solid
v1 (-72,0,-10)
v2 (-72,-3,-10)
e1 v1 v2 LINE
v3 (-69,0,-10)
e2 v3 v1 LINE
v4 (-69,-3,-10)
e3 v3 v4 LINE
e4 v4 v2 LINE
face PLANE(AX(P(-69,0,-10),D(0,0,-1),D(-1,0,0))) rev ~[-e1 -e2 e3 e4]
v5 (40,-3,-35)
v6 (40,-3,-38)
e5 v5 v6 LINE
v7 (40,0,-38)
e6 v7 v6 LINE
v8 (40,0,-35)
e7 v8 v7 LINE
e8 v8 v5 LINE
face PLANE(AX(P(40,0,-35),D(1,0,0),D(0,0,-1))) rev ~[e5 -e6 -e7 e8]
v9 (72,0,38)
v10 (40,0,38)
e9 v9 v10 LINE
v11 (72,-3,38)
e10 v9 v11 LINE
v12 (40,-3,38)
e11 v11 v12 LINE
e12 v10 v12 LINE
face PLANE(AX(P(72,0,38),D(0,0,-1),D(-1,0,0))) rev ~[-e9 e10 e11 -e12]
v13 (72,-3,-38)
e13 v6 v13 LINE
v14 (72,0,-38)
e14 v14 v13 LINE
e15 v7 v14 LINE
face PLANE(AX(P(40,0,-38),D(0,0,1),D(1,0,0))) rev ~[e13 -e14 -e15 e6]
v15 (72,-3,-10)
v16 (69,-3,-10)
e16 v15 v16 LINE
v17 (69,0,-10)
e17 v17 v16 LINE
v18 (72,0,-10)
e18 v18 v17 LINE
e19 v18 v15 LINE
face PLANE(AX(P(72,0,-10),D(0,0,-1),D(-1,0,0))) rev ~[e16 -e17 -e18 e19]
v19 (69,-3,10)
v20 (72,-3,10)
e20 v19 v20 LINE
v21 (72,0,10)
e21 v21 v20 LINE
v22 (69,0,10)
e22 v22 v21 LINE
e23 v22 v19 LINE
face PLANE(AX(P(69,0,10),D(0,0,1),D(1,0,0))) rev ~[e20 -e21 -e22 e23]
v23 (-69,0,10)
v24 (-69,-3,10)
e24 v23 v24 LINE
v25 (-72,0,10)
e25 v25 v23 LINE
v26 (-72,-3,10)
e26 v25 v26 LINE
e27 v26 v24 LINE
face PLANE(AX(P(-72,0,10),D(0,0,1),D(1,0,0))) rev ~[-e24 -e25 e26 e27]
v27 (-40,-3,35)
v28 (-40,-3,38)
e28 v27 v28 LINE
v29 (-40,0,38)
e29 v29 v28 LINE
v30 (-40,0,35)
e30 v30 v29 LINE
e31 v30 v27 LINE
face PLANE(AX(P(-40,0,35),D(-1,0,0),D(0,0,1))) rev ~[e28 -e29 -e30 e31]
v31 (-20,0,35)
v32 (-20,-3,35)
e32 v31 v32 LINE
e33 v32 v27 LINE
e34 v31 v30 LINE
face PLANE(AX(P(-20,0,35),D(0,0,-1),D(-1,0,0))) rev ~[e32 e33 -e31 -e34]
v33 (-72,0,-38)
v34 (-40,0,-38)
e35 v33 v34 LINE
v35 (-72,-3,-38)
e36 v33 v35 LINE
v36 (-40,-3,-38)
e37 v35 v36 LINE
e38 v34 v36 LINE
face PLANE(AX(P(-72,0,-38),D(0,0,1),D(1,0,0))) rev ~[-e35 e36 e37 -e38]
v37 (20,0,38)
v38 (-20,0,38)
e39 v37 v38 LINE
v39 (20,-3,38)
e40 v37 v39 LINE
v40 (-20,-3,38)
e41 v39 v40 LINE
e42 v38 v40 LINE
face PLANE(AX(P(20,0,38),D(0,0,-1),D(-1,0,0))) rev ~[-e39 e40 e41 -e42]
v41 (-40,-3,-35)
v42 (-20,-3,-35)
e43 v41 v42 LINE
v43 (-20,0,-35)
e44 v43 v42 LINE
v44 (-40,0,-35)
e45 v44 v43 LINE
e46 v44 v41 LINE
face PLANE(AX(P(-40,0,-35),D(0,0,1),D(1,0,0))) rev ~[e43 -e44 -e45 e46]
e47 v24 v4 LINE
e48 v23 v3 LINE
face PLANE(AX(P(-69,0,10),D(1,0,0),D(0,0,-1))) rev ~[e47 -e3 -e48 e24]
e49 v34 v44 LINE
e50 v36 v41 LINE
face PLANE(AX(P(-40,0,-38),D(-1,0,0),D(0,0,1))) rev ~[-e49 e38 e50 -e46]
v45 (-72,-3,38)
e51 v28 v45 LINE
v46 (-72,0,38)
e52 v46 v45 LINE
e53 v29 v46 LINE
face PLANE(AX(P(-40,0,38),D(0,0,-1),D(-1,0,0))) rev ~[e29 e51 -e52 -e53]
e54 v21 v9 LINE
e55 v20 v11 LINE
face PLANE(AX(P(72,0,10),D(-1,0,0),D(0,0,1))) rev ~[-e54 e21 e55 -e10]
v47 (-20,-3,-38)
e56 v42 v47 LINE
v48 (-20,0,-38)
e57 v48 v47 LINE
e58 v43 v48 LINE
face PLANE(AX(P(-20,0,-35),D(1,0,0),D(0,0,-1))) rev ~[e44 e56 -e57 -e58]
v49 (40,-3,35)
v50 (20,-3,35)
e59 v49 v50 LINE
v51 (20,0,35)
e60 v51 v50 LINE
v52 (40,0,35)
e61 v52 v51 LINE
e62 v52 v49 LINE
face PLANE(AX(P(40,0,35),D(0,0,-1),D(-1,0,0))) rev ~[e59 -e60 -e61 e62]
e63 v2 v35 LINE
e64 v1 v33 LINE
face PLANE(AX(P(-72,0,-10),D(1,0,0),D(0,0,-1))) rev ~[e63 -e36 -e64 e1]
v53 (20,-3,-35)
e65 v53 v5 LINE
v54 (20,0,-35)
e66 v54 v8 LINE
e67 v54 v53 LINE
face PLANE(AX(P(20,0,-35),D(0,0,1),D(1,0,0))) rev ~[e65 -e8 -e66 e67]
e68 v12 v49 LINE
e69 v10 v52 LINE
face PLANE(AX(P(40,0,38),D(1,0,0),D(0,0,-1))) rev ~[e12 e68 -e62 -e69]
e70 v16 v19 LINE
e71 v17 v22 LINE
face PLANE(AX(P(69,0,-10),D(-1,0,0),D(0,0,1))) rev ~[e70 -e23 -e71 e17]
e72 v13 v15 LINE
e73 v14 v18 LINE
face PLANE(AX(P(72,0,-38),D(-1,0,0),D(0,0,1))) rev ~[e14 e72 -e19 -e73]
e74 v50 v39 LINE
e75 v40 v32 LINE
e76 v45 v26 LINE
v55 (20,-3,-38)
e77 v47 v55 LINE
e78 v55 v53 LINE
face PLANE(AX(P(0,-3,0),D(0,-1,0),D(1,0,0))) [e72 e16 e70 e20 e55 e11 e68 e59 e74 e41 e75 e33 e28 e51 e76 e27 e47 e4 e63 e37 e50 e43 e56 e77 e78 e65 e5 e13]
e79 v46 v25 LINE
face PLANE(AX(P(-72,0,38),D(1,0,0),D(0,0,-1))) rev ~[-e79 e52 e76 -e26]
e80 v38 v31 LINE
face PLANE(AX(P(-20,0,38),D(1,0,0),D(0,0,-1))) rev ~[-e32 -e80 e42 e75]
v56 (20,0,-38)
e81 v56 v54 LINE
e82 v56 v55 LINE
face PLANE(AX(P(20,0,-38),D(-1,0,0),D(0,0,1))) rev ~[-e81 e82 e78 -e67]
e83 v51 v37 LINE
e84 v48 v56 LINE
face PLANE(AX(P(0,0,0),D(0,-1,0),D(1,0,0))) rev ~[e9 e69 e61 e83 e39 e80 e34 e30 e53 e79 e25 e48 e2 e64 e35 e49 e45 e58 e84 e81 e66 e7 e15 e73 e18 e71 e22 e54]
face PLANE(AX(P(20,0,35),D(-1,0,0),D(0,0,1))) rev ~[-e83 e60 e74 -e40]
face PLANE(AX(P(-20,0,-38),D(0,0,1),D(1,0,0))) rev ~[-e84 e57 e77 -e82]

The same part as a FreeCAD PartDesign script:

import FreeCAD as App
import Part
import Sketcher

V = App.Vector

doc = App.newDocument("Part")
params = doc.addObject("Spreadsheet::Sheet", "Params")
for row, (alias, value) in enumerate([
    ("sketch1_width", "32 mm"),
    ("sketch1_width2", "3 mm"),
    ("sketch1_width3", "20 mm"),
    ("sketch1_width4", "40 mm"),
    ("sketch1_height", "28 mm"),
    ("pad1_length", "3 mm"),
], start=1):
    params.set(f"A{row}", alias)
    params.set(f"B{row}", "=" + value)
    params.setAlias(f"B{row}", alias)

body = doc.addObject("PartDesign::Body", "Body")

# Sketch on XZ plane
sketch1 = body.newObject("Sketcher::SketchObject", "Sketch")
sketch1.AttachmentSupport = (doc.getObject("XZ_Plane"), [""])
sketch1.MapMode = "FlatFace"
sketch1.addGeometry([
    Part.LineSegment(V(40, -38, 0), V(72, -38, 0)),  # 0
    Part.LineSegment(V(72, -38, 0), V(72, -10, 0)),  # 1
    Part.LineSegment(V(72, -10, 0), V(69, -10, 0)),  # 2
    Part.LineSegment(V(69, -10, 0), V(69, 10, 0)),  # 3
    Part.LineSegment(V(69, 10, 0), V(72, 10, 0)),  # 4
    Part.LineSegment(V(72, 10, 0), V(72, 38, 0)),  # 5
    Part.LineSegment(V(72, 38, 0), V(40, 38, 0)),  # 6
    Part.LineSegment(V(40, 38, 0), V(40, 35, 0)),  # 7
    Part.LineSegment(V(40, 35, 0), V(20, 35, 0)),  # 8
    Part.LineSegment(V(20, 35, 0), V(20, 38, 0)),  # 9
    Part.LineSegment(V(20, 38, 0), V(-20, 38, 0)),  # 10
    Part.LineSegment(V(-20, 38, 0), V(-20, 35, 0)),  # 11
    Part.LineSegment(V(-20, 35, 0), V(-40, 35, 0)),  # 12
    Part.LineSegment(V(-40, 35, 0), V(-40, 38, 0)),  # 13
    Part.LineSegment(V(-40, 38, 0), V(-72, 38, 0)),  # 14
    Part.LineSegment(V(-72, 38, 0), V(-72, 10, 0)),  # 15
    Part.LineSegment(V(-72, 10, 0), V(-69, 10, 0)),  # 16
    Part.LineSegment(V(-69, 10, 0), V(-69, -10, 0)),  # 17
    Part.LineSegment(V(-69, -10, 0), V(-72, -10, 0)),  # 18
    Part.LineSegment(V(-72, -10, 0), V(-72, -38, 0)),  # 19
    Part.LineSegment(V(-72, -38, 0), V(-40, -38, 0)),  # 20
    Part.LineSegment(V(-40, -38, 0), V(-40, -35, 0)),  # 21
    Part.LineSegment(V(-40, -35, 0), V(-20, -35, 0)),  # 22
    Part.LineSegment(V(-20, -35, 0), V(-20, -38, 0)),  # 23
    Part.LineSegment(V(-20, -38, 0), V(20, -38, 0)),  # 24
    Part.LineSegment(V(20, -38, 0), V(20, -35, 0)),  # 25
    Part.LineSegment(V(20, -35, 0), V(40, -35, 0)),  # 26
    Part.LineSegment(V(40, -35, 0), V(40, -38, 0)),  # 27
], False)
sketch1.addConstraint([
    Sketcher.Constraint("Coincident", 0, 2, 1, 1),
    Sketcher.Constraint("Coincident", 1, 2, 2, 1),
    Sketcher.Constraint("Coincident", 2, 2, 3, 1),
    Sketcher.Constraint("Coincident", 3, 2, 4, 1),
    Sketcher.Constraint("Coincident", 4, 2, 5, 1),
    Sketcher.Constraint("Coincident", 5, 2, 6, 1),
    Sketcher.Constraint("Coincident", 6, 2, 7, 1),
    Sketcher.Constraint("Coincident", 7, 2, 8, 1),
    Sketcher.Constraint("Coincident", 8, 2, 9, 1),
    Sketcher.Constraint("Coincident", 9, 2, 10, 1),
    Sketcher.Constraint("Coincident", 10, 2, 11, 1),
    Sketcher.Constraint("Coincident", 11, 2, 12, 1),
    Sketcher.Constraint("Coincident", 12, 2, 13, 1),
    Sketcher.Constraint("Coincident", 13, 2, 14, 1),
    Sketcher.Constraint("Coincident", 14, 2, 15, 1),
    Sketcher.Constraint("Coincident", 15, 2, 16, 1),
    Sketcher.Constraint("Coincident", 16, 2, 17, 1),
    Sketcher.Constraint("Coincident", 17, 2, 18, 1),
    Sketcher.Constraint("Coincident", 18, 2, 19, 1),
    Sketcher.Constraint("Coincident", 19, 2, 20, 1),
    Sketcher.Constraint("Coincident", 20, 2, 21, 1),
    Sketcher.Constraint("Coincident", 21, 2, 22, 1),
    Sketcher.Constraint("Coincident", 22, 2, 23, 1),
    Sketcher.Constraint("Coincident", 23, 2, 24, 1),
    Sketcher.Constraint("Coincident", 24, 2, 25, 1),
    Sketcher.Constraint("Coincident", 25, 2, 26, 1),
    Sketcher.Constraint("Coincident", 26, 2, 27, 1),
    Sketcher.Constraint("Coincident", 27, 2, 0, 1),
    Sketcher.Constraint("Horizontal", 0),
    Sketcher.Constraint("Vertical", 1),
    Sketcher.Constraint("Horizontal", 2),
    Sketcher.Constraint("Vertical", 3),
    Sketcher.Constraint("Horizontal", 4),
    Sketcher.Constraint("Vertical", 5),
    Sketcher.Constraint("Horizontal", 6),
    Sketcher.Constraint("Vertical", 7),
    Sketcher.Constraint("Horizontal", 8),
    Sketcher.Constraint("Vertical", 9),
    Sketcher.Constraint("Horizontal", 10),
    Sketcher.Constraint("Vertical", 11),
    Sketcher.Constraint("Horizontal", 12),
    Sketcher.Constraint("Vertical", 13),
    Sketcher.Constraint("Horizontal", 14),
    Sketcher.Constraint("Vertical", 15),
    Sketcher.Constraint("Horizontal", 16),
    Sketcher.Constraint("Vertical", 17),
    Sketcher.Constraint("Horizontal", 18),
    Sketcher.Constraint("Vertical", 19),
    Sketcher.Constraint("Horizontal", 20),
    Sketcher.Constraint("Vertical", 21),
    Sketcher.Constraint("Horizontal", 22),
    Sketcher.Constraint("Vertical", 23),
    Sketcher.Constraint("Horizontal", 24),
    Sketcher.Constraint("Vertical", 25),
    Sketcher.Constraint("Horizontal", 26),
    Sketcher.Constraint("Vertical", 27),
    Sketcher.Constraint("Symmetric", 0, 2, 14, 2, -1, 1),
    Sketcher.Constraint("Symmetric", 2, 2, 16, 2, -1, 1),
    Sketcher.Constraint("Symmetric", 4, 2, 18, 2, -1, 1),
    Sketcher.Constraint("Symmetric", 6, 2, 20, 2, -1, 1),
    Sketcher.Constraint("Symmetric", 8, 2, 22, 2, -1, 1),
    Sketcher.Constraint("Symmetric", 10, 2, 24, 2, -1, 1),
    Sketcher.Constraint("Symmetric", 12, 2, 26, 2, -1, 1),
    Sketcher.Constraint("Symmetric", 8, 2, 11, 2, -2),
    Sketcher.Constraint("Symmetric", 6, 2, 13, 2, -2),
    Sketcher.Constraint("Symmetric", 4, 2, 15, 2, -2),
    Sketcher.Constraint("Horizontal", 6, 2, 9, 2),
    Sketcher.Constraint("Equal", 26, 3),
    Sketcher.Constraint("Equal", 18, 7),
    Sketcher.Constraint("DistanceX", 0, 1, 0, 2, 32.0),
    Sketcher.Constraint("DistanceX", 2, 2, 2, 1, 3.0),
    Sketcher.Constraint("DistanceX", 8, 2, 8, 1, 20.0),
    Sketcher.Constraint("DistanceX", 10, 2, 10, 1, 40.0),
    Sketcher.Constraint("DistanceY", 1, 1, 1, 2, 28.0),
])
sketch1.setExpression("Constraints[69]", "Params.sketch1_width")
sketch1.setExpression("Constraints[70]", "Params.sketch1_width2")
sketch1.setExpression("Constraints[71]", "Params.sketch1_width3")
sketch1.setExpression("Constraints[72]", "Params.sketch1_width4")
sketch1.setExpression("Constraints[73]", "Params.sketch1_height")
pad1 = body.newObject("PartDesign::Pad", "Pad")
pad1.Profile = sketch1
pad1.setExpression("Length", "Params.pad1_length")

doc.recompute()
